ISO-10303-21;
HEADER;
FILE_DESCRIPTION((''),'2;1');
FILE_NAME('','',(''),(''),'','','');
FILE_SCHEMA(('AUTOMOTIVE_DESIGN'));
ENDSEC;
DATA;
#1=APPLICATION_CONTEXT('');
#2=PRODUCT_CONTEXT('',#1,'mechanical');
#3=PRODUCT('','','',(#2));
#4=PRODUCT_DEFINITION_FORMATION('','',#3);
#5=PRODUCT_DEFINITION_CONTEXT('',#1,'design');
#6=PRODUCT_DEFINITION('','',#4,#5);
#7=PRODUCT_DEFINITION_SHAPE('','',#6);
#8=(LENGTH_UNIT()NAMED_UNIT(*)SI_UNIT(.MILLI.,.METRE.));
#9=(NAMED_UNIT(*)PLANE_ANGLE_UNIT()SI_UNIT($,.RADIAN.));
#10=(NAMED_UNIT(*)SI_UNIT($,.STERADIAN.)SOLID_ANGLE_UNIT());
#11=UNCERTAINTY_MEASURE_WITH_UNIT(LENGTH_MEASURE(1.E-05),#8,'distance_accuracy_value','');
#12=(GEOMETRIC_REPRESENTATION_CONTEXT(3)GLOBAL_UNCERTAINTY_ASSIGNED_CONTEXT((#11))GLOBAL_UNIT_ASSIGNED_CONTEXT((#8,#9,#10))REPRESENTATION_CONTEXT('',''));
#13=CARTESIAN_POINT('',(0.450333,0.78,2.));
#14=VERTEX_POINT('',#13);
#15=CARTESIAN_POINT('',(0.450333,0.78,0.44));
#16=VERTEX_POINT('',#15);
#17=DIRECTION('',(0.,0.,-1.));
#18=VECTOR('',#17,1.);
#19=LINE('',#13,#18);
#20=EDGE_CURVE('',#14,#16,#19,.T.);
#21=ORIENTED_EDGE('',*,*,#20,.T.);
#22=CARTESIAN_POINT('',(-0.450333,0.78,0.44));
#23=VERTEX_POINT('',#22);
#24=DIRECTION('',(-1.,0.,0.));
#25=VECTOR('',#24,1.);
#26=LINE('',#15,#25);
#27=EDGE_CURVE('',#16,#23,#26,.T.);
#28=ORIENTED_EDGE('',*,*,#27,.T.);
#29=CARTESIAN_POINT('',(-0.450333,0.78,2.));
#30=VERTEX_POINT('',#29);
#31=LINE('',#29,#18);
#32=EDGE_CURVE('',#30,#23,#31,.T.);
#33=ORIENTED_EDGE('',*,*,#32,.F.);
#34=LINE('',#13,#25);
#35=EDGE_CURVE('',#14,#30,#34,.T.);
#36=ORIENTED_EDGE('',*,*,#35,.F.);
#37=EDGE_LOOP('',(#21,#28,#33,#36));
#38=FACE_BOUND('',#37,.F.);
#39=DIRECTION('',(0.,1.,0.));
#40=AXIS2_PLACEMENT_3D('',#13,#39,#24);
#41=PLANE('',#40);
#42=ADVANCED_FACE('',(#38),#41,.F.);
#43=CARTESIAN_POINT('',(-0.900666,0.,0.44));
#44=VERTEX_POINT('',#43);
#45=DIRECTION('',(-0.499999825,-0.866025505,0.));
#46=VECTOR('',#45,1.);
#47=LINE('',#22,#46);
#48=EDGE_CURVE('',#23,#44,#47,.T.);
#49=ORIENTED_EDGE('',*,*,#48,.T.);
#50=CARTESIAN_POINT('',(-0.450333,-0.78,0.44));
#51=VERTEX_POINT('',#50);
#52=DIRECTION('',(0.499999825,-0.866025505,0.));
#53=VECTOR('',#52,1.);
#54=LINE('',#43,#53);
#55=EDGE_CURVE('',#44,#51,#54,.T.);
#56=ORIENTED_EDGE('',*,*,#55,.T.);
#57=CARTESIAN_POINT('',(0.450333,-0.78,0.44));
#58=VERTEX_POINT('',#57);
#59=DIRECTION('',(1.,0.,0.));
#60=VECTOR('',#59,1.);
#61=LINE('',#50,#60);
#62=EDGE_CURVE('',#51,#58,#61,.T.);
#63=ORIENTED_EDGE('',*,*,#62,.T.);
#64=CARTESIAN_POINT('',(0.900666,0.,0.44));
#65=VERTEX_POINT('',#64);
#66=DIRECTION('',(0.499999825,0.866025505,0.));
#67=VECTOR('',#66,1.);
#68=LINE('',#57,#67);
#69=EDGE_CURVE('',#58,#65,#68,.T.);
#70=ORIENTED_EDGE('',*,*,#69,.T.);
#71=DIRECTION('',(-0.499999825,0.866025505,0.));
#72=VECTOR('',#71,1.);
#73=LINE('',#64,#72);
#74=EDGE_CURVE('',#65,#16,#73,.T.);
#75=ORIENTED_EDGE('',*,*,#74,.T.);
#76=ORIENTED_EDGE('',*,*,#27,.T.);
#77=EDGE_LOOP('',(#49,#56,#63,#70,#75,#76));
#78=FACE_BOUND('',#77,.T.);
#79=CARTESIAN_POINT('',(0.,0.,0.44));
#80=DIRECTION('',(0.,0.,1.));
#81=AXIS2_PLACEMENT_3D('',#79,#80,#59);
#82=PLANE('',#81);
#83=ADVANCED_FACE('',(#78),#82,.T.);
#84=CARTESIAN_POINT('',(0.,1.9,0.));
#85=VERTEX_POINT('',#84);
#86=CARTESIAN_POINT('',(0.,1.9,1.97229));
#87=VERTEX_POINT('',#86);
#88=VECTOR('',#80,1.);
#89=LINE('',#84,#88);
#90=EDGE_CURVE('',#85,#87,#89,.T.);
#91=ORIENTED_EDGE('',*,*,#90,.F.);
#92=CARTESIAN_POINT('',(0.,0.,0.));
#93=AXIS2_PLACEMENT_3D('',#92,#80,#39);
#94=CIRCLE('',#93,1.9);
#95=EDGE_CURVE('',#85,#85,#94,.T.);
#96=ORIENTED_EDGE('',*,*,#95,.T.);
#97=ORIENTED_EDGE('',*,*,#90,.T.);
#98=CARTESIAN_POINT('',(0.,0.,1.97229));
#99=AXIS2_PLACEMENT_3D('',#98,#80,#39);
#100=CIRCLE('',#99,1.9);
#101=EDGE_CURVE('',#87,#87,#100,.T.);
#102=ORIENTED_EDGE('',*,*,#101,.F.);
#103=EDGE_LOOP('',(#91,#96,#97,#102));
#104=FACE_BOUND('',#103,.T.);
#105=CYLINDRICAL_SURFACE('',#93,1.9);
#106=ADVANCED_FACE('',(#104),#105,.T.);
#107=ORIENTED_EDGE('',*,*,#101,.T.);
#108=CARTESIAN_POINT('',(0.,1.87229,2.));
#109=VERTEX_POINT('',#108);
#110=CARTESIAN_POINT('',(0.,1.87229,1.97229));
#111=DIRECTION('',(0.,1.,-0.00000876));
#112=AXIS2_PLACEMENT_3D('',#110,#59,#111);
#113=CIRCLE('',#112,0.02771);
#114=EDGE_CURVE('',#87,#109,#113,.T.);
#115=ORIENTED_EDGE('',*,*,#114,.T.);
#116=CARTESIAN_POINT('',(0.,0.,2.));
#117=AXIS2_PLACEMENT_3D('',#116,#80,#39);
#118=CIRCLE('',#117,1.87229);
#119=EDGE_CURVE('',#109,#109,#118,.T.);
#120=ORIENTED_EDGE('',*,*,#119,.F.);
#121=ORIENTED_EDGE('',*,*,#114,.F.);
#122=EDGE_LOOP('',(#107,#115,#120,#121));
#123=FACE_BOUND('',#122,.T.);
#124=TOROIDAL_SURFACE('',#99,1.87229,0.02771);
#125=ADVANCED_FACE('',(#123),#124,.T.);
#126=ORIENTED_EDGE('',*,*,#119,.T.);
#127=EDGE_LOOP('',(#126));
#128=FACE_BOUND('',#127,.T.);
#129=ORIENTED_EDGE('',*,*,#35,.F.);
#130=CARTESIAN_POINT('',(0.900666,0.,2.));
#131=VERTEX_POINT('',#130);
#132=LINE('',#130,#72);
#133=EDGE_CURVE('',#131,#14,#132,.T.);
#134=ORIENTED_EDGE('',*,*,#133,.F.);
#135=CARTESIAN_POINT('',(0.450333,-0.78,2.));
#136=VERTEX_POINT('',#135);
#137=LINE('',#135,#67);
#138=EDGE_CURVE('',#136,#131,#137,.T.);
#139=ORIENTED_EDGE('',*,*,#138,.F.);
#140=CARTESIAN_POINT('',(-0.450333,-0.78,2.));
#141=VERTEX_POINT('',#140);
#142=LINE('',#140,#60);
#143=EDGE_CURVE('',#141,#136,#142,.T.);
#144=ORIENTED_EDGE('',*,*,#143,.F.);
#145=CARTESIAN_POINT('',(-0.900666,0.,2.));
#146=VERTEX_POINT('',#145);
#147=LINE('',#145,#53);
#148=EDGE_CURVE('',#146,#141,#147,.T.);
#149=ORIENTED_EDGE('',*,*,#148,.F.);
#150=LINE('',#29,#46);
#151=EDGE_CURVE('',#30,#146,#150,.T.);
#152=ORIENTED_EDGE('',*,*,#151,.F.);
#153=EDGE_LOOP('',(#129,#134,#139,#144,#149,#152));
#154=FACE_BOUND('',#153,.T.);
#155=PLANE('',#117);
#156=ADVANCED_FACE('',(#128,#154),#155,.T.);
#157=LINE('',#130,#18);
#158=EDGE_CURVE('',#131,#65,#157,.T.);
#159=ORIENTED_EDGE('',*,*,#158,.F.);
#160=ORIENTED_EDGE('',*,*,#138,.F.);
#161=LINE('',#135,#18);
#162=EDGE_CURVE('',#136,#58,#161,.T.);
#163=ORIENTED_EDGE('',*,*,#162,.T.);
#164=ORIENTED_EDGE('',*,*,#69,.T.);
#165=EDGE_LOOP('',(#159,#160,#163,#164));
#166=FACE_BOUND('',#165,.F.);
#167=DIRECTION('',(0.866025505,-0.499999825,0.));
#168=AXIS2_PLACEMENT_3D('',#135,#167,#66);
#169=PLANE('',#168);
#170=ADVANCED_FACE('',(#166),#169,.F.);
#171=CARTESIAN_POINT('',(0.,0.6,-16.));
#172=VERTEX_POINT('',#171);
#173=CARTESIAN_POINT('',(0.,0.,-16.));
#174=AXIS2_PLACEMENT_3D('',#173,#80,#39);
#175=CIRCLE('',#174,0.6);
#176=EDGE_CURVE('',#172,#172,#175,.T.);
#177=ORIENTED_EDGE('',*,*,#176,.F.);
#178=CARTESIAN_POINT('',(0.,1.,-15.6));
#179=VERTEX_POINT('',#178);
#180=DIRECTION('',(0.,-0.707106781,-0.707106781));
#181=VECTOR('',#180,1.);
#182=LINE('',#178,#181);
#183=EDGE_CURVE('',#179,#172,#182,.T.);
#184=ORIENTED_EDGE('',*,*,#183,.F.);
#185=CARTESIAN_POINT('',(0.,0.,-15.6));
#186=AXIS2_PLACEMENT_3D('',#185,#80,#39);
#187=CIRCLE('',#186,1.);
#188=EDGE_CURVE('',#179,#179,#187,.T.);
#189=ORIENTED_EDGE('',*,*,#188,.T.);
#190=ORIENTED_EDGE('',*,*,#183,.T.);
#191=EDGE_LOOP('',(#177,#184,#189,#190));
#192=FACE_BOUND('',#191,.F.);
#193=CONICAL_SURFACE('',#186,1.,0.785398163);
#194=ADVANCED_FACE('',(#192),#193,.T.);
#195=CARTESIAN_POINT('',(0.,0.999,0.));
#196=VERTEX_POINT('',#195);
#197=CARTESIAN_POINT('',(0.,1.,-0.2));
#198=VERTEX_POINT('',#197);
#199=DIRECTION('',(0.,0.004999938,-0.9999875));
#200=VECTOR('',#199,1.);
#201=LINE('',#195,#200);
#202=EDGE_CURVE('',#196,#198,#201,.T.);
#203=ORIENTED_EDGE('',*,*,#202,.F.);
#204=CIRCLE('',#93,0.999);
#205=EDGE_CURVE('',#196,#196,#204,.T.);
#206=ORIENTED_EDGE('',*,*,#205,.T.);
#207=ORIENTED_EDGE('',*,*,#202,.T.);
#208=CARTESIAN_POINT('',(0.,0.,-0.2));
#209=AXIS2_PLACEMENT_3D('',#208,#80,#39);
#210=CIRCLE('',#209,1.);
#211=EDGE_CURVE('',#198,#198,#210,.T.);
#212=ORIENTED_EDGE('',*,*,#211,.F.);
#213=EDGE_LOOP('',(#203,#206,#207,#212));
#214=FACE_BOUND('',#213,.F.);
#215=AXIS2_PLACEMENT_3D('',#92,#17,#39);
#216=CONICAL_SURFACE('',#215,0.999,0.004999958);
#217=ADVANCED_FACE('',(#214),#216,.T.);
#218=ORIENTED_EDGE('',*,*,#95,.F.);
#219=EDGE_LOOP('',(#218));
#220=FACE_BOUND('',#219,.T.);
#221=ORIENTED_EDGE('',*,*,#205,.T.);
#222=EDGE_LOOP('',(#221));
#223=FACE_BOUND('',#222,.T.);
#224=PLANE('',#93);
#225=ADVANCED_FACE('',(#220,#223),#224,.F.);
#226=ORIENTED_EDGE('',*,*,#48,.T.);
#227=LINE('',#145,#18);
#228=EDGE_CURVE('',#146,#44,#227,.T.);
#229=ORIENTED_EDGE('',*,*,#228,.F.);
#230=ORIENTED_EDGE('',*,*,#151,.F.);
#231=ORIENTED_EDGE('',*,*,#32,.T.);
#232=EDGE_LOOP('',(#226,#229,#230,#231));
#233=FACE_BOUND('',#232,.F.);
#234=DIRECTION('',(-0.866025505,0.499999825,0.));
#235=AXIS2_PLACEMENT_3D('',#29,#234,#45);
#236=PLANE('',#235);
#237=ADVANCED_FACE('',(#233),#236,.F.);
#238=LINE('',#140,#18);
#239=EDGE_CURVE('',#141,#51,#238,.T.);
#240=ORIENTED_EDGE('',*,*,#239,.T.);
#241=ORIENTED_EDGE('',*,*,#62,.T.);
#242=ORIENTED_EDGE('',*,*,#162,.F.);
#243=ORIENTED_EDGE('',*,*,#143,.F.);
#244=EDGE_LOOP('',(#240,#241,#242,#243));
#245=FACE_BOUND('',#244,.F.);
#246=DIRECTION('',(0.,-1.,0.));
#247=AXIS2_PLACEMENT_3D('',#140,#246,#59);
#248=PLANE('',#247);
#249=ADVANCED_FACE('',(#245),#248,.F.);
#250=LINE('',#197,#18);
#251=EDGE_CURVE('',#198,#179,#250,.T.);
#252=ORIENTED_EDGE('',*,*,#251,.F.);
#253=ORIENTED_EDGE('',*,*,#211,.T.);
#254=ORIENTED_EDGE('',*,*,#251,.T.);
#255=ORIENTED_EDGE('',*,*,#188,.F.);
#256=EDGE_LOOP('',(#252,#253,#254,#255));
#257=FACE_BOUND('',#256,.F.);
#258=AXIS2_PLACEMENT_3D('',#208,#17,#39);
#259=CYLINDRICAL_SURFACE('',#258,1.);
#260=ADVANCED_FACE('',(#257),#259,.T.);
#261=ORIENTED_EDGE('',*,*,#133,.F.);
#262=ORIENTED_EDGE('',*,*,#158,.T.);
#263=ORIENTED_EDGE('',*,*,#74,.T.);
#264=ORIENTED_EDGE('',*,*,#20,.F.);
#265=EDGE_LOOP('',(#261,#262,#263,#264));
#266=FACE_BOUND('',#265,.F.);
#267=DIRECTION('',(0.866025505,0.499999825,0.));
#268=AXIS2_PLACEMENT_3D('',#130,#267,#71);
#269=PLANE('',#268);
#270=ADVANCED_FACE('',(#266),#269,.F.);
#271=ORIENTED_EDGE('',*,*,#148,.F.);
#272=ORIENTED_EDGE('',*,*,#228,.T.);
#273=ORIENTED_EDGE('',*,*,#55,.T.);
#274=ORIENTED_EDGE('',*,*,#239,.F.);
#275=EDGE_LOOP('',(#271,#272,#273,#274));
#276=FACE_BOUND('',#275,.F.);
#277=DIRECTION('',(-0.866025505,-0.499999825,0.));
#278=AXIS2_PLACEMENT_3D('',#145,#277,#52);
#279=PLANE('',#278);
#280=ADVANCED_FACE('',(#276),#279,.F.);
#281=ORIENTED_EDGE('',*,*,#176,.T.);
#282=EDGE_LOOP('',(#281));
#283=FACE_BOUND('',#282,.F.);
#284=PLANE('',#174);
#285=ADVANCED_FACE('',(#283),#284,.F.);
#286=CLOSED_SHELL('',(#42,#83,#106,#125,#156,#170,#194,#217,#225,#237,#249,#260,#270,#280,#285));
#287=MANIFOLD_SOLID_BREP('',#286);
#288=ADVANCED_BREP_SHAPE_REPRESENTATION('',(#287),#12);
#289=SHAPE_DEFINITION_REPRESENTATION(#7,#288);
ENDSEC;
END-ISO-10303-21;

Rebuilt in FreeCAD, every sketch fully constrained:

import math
import FreeCAD as App
import Part
import Sketcher

V = App.Vector
Q = App.Units.Quantity


def add_polygon(sketch, points):
    """Adds a closed chain of lines whose ends are joined by coincident constraints."""
    first, n = sketch.GeometryCount, len(points)
    for a, b in zip(points, points[1:] + points[:1]):
        sketch.addGeometry(Part.LineSegment(App.Vector(*a, 0), App.Vector(*b, 0)), False)
    for i in range(n):
        sketch.addConstraint(Sketcher.Constraint("Coincident", first + i, 2, first + (i + 1) % n, 1))

doc = App.newDocument("Part")
body = doc.addObject("PartDesign::Body", "Body")

sketch1 = doc.addObject("Sketcher::SketchObject", "Sketch")
body.addObject(sketch1)
sketch1.AttachmentSupport = (doc.YZ_Plane, [""])
sketch1.MapMode = "FlatFace"
sketch1.addGeometry(Part.LineSegment(V(0.999, 0, 0), V(1.9, 0, 0)), False)
sketch1.addGeometry(Part.LineSegment(V(1.9, 0, 0), V(1.9, 1.972, 0)), False)
sketch1.addGeometry(Part.ArcOfCircle(Part.Circle(V(1.872, 1.972, 0), V(0, 0, 1), 0.028), math.radians(0), math.radians(90)), False)
sketch1.addGeometry(Part.LineSegment(V(1.872, 2, 0), V(0, 2, 0)), False)
sketch1.addGeometry(Part.LineSegment(V(0, 2, 0), V(0, -16, 0)), False)
sketch1.addGeometry(Part.LineSegment(V(0, -16, 0), V(0.6, -16, 0)), False)
sketch1.addGeometry(Part.LineSegment(V(0.6, -16, 0), V(1, -15.6, 0)), False)
sketch1.addGeometry(Part.LineSegment(V(1, -15.6, 0), V(1, -0.2, 0)), False)
sketch1.addGeometry(Part.LineSegment(V(1, -0.2, 0), V(0.999, 0, 0)), False)
sketch1.addConstraint(Sketcher.Constraint("Coincident", 0, 2, 1, 1))
sketch1.addConstraint(Sketcher.Constraint("Coincident", 1, 2, 2, 1))
sketch1.addConstraint(Sketcher.Constraint("Coincident", 2, 2, 3, 1))
sketch1.addConstraint(Sketcher.Constraint("Coincident", 3, 2, 4, 1))
sketch1.addConstraint(Sketcher.Constraint("Coincident", 4, 2, 5, 1))
sketch1.addConstraint(Sketcher.Constraint("Coincident", 5, 2, 6, 1))
sketch1.addConstraint(Sketcher.Constraint("Coincident", 6, 2, 7, 1))
sketch1.addConstraint(Sketcher.Constraint("Coincident", 7, 2, 8, 1))
sketch1.addConstraint(Sketcher.Constraint("Coincident", 8, 2, 0, 1))
sketch1.addConstraint(Sketcher.Constraint("Horizontal", 0))
sketch1.addConstraint(Sketcher.Constraint("Vertical", 1))
sketch1.addConstraint(Sketcher.Constraint("Horizontal", 3))
sketch1.addConstraint(Sketcher.Constraint("Vertical", 4))
sketch1.addConstraint(Sketcher.Constraint("Horizontal", 5))
sketch1.addConstraint(Sketcher.Constraint("Vertical", 7))
sketch1.addConstraint(Sketcher.Constraint("PointOnObject", 0, 2, -1))
sketch1.addConstraint(Sketcher.Constraint("PointOnObject", 3, 2, -2))
sketch1.addConstraint(Sketcher.Constraint("Horizontal", 2, 3, 1, 2))
sketch1.addConstraint(Sketcher.Constraint("DistanceY", 4, 2, 4, 1, 18.0))
sketch1.addConstraint(Sketcher.Constraint("Angle", 6, Q("45 deg")))
sketch1.addConstraint(Sketcher.Constraint("DistanceX", 5, 1, 5, 2, 0.6))
sketch1.addConstraint(Sketcher.Constraint("DistanceY", 7, 1, 7, 2, 15.4))
sketch1.addConstraint(Sketcher.Constraint("DistanceY", -1, 1, 2, 2, 2.0))
sketch1.addConstraint(Sketcher.Constraint("DistanceX", -1, 1, 6, 2, 1.0))
sketch1.addConstraint(Sketcher.Constraint("DistanceX", -1, 1, 0, 2, 1.9))
sketch1.addConstraint(Sketcher.Constraint("DistanceX", 0, 1, 0, 2, 0.901))
sketch1.addConstraint(Sketcher.Constraint("Radius", 2, 0.02771))
sketch1.addConstraint(Sketcher.Constraint("DistanceX", 3, 2, 3, 1, 1.87229))
revolution = doc.addObject("PartDesign::Revolution", "Revolution")
body.addObject(revolution)
revolution.Profile = sketch1
revolution.ReferenceAxis = (sketch1, ["V_Axis"])
revolution.Angle = 360

sketch2 = doc.addObject("Sketcher::SketchObject", "Sketch001")
body.addObject(sketch2)
sketch2.AttachmentSupport = (doc.XY_Plane, [""])
sketch2.MapMode = "FlatFace"
sketch2.AttachmentOffset = App.Placement(V(0, 0, 2), App.Rotation())
add_polygon(sketch2, [(0.9, 0), (0.5, 0.8), (-0.5, 0.8), (-0.9, 0), (-0.5, -0.8), (0.5, -0.8)])
sketch2.addConstraint(Sketcher.Constraint("Horizontal", 1))
sketch2.addConstraint(Sketcher.Constraint("Horizontal", 4))
sketch2.addConstraint(Sketcher.Constraint("Symmetric", 0, 2, 3, 2, -1, 1))
sketch2.addConstraint(Sketcher.Constraint("Symmetric", 2, 2, 5, 2, -1, 1))
sketch2.addConstraint(Sketcher.Constraint("PointOnObject", 2, 2, -1))
sketch2.addConstraint(Sketcher.Constraint("Parallel", 2, 5))
sketch2.addConstraint(Sketcher.Constraint("Vertical", 1, 2, 3, 2))
sketch2.addConstraint(Sketcher.Constraint("Angle", 0, Q("119.999988 deg")))
sketch2.addConstraint(Sketcher.Constraint("DistanceY", -1, 1, 0, 2, 0.78))
sketch2.addConstraint(Sketcher.Constraint("DistanceX", 2, 2, 0, 2, 1.350999))
pocket1 = doc.addObject("PartDesign::Pocket", "Pocket")
body.addObject(pocket1)
pocket1.Profile = sketch2
pocket1.Length = 1.56

doc.recompute()
